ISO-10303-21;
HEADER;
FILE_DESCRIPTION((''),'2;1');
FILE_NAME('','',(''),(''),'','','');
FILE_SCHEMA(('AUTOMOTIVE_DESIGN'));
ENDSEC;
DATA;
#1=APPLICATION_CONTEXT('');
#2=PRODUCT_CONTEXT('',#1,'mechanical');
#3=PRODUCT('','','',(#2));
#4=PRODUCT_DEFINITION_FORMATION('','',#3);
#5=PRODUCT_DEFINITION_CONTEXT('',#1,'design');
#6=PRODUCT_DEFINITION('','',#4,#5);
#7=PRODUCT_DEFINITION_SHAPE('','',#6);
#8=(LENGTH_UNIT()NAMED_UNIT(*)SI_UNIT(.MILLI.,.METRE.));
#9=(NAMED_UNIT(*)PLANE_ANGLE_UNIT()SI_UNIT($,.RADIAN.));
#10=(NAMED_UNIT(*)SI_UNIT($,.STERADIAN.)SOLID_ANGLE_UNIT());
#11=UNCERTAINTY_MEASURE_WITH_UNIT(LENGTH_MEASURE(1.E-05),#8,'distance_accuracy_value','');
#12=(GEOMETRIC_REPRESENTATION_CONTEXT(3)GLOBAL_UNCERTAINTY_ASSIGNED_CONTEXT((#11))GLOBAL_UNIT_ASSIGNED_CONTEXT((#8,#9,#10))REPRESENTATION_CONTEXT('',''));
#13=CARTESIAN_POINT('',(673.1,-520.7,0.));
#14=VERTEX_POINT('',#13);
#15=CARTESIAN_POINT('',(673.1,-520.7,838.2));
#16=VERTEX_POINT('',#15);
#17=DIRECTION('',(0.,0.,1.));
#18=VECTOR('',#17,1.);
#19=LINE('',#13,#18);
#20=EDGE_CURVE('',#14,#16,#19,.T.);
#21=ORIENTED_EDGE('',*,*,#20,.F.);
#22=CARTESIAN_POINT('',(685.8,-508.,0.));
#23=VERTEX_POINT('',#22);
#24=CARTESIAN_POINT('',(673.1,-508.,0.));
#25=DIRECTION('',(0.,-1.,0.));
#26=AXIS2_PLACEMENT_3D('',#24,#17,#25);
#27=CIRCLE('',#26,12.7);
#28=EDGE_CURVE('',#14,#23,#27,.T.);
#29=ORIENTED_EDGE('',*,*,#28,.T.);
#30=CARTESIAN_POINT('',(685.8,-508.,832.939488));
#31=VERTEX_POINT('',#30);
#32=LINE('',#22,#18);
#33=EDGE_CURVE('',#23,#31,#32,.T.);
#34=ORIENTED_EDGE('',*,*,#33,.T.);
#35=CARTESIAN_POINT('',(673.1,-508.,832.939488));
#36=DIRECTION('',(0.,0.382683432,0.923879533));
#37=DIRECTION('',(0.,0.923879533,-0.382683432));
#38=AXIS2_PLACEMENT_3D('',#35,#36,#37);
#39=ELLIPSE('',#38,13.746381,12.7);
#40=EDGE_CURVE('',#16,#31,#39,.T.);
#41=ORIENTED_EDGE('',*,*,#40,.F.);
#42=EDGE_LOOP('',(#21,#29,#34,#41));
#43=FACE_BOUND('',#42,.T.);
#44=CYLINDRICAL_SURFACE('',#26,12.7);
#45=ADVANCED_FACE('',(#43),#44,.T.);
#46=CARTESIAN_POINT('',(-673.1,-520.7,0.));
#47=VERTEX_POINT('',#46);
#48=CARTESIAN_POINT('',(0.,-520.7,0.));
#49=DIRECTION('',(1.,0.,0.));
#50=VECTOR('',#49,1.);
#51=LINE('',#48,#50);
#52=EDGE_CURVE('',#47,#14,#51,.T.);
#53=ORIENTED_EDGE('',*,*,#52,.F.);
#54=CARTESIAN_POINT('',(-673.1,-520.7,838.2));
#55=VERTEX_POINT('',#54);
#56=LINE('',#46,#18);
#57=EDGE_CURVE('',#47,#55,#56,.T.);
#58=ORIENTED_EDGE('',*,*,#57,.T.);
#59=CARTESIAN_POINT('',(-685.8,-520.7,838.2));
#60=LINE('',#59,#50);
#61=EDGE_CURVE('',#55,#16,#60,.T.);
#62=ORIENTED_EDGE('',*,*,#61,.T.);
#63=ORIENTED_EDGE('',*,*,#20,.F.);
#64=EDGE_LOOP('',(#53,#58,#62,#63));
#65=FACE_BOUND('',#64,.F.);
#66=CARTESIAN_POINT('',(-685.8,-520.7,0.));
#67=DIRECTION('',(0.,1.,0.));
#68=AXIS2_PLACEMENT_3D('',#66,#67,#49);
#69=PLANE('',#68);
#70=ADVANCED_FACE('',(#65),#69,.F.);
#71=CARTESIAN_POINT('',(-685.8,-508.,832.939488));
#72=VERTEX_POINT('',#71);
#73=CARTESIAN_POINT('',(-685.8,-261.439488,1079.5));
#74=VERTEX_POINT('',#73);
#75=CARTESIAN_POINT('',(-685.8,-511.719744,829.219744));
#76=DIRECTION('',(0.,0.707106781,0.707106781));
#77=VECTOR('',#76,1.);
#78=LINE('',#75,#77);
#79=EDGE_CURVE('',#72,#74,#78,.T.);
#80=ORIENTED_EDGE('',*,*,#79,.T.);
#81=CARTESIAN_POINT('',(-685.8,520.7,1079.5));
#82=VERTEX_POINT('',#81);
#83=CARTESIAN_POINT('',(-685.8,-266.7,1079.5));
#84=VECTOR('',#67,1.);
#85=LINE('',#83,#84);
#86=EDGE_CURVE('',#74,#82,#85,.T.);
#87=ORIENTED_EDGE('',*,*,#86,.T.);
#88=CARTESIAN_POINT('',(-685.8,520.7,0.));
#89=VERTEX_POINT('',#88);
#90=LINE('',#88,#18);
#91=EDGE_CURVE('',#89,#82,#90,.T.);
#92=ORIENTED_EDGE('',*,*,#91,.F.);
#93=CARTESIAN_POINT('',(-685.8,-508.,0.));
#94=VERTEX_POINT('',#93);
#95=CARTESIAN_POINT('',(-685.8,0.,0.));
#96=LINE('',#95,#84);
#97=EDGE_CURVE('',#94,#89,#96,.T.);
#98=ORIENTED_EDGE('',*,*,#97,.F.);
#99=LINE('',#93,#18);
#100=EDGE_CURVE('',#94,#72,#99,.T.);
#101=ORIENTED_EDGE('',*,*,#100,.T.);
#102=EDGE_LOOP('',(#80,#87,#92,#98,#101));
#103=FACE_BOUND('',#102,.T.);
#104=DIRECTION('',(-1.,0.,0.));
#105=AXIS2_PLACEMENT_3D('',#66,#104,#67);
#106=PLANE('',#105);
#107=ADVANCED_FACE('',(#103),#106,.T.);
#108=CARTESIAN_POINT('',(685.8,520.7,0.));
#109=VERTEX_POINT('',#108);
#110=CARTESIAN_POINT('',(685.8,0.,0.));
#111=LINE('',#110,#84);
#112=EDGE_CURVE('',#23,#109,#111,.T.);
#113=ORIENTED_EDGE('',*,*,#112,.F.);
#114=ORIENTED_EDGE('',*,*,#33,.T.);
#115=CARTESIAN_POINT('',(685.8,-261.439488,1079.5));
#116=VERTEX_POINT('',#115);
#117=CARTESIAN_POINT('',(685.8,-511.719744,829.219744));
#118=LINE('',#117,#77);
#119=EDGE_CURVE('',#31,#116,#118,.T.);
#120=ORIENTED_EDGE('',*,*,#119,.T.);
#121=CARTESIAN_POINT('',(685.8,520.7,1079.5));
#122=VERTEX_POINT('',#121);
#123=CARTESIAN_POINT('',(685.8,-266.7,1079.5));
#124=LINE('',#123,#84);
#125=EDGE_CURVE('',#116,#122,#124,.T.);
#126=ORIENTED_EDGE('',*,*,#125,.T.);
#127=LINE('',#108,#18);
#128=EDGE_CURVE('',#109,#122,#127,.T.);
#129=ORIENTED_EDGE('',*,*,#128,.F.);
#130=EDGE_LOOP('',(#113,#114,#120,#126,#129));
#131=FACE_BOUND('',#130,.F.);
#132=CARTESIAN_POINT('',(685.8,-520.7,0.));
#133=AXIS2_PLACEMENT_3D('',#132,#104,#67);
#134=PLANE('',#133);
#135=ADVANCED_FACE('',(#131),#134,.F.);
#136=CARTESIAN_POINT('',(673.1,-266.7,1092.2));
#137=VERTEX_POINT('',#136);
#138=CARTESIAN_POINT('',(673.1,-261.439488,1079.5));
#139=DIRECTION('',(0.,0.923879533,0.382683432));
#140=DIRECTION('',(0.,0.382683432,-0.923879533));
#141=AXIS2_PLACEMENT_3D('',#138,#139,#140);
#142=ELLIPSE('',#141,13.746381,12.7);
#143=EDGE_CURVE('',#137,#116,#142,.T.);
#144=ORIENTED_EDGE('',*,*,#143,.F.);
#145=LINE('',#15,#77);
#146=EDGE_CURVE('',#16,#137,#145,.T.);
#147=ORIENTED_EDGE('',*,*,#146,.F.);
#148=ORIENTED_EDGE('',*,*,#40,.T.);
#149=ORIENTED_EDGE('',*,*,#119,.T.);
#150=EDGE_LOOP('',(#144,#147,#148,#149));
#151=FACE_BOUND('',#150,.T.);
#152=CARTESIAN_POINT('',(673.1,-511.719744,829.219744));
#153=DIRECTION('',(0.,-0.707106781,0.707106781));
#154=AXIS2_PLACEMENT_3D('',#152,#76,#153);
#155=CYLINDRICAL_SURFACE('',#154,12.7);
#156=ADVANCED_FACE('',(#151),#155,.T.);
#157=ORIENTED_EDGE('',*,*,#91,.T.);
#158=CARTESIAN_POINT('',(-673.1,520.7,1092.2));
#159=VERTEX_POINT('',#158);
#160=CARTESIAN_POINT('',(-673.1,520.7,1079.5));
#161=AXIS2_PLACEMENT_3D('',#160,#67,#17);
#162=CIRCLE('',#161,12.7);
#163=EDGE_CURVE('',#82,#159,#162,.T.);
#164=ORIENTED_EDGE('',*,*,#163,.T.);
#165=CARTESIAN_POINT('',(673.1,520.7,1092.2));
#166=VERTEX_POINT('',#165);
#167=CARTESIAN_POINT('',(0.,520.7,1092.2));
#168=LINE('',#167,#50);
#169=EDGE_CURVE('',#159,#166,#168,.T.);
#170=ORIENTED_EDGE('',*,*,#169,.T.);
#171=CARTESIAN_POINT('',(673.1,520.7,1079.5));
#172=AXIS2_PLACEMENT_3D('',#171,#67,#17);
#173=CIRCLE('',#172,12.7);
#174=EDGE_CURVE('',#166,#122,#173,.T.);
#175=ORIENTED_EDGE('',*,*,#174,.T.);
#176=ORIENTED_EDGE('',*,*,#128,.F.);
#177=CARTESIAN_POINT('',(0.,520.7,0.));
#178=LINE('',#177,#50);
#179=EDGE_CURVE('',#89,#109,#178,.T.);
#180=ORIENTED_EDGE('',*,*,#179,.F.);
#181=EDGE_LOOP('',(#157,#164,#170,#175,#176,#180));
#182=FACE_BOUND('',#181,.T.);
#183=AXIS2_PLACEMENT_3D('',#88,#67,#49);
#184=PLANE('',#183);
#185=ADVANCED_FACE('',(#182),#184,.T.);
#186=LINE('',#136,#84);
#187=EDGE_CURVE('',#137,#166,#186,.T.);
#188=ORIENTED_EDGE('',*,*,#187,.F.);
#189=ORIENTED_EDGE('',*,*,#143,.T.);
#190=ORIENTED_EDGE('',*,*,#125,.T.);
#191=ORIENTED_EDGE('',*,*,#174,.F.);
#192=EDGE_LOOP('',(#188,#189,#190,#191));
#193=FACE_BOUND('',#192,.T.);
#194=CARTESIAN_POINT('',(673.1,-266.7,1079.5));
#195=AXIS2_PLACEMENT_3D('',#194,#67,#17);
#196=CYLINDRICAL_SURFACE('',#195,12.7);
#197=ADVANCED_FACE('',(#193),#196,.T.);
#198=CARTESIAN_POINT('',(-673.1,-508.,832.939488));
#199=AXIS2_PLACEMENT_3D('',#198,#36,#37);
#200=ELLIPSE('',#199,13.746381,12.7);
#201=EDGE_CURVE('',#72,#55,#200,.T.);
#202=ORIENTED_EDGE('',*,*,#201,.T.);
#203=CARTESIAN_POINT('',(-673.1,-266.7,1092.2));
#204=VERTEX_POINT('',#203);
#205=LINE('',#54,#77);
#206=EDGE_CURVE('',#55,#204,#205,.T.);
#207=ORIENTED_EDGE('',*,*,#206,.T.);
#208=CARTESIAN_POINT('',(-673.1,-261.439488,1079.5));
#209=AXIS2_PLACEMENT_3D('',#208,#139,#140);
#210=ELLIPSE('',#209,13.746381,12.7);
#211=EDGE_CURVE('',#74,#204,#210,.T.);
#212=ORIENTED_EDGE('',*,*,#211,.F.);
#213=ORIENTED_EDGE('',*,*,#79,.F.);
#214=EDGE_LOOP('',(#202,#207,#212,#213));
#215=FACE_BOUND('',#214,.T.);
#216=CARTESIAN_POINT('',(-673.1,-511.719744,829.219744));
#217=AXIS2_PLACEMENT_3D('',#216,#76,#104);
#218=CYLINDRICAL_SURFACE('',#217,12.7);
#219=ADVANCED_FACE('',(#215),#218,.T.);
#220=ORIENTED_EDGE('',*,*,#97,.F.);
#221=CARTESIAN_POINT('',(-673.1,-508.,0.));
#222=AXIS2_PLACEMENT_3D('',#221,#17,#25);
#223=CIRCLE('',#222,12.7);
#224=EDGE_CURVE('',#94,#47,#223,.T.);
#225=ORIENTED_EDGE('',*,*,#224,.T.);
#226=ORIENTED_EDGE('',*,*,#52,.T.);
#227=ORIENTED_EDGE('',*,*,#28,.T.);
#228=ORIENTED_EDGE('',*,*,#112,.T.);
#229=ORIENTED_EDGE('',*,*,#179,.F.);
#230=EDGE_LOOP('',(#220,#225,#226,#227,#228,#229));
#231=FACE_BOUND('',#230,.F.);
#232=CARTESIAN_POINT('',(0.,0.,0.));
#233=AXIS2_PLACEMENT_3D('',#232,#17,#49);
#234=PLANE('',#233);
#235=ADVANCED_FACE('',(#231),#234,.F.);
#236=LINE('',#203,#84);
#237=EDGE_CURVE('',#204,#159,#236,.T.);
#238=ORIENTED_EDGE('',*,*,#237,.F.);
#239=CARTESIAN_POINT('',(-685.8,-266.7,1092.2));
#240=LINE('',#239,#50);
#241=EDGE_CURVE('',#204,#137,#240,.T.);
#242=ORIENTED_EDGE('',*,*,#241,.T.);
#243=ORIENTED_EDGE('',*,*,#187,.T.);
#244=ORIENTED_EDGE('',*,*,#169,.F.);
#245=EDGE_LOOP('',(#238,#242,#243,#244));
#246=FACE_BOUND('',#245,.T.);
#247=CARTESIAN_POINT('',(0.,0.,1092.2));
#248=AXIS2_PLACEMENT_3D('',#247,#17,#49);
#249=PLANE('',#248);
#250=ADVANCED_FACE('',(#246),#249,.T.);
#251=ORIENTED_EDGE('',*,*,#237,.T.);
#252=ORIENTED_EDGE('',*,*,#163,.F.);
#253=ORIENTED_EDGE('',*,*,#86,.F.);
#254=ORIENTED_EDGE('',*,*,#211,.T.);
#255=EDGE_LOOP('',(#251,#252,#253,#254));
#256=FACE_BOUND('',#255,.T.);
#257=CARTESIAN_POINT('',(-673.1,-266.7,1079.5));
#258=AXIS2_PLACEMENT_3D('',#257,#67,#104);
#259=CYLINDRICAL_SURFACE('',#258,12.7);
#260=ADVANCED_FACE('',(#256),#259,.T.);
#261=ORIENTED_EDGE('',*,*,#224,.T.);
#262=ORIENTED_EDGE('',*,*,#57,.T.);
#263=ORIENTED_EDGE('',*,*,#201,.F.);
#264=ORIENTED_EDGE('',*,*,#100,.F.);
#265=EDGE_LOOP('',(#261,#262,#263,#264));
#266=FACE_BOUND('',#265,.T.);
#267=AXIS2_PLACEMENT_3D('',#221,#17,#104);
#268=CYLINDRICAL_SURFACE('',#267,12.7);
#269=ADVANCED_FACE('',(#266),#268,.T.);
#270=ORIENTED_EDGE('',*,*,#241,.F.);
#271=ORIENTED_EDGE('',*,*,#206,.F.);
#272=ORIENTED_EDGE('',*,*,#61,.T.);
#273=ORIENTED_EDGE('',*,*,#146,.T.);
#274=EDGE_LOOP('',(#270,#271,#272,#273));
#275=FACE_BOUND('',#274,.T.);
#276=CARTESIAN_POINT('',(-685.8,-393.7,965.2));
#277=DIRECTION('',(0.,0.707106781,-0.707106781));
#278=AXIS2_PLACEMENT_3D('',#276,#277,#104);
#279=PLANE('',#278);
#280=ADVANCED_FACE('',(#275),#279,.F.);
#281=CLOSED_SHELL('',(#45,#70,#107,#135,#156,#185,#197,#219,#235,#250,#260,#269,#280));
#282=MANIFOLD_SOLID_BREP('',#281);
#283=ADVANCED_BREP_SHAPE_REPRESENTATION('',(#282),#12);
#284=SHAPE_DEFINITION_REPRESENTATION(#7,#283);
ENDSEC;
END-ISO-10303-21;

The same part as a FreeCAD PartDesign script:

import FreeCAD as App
import Part
import Sketcher

V = App.Vector
Q = App.Units.Quantity


def edges_at(feature, points):
    """Names of the edges that pass closest to the given points."""
    edges = feature.Shape.Edges
    near = lambda p: min(range(len(edges)), key=lambda i: edges[i].distToShape(Part.Vertex(*p))[0])
    return sorted({f"Edge{near(p) + 1}" for p in points})

doc = App.newDocument("Part")
params = doc.addObject("Spreadsheet::Sheet", "Params")
for row, (alias, value) in enumerate([
    ("sketch1_width", "54 in"),
    ("sketch1_height", "41 in"),
    ("pad1_length", "43 in"),
    ("chamfer_size", "10 in"),
    ("fillet_radius", "0.5 in"),
], start=1):
    params.set(f"A{row}", alias)
    params.set(f"B{row}", "=" + value)
    params.setAlias(f"B{row}", alias)

body = doc.addObject("PartDesign::Body", "Body")

# Sketch on XY plane
sketch1 = body.newObject("Sketcher::SketchObject", "Sketch")
sketch1.AttachmentSupport = (doc.getObject("XY_Plane"), [""])
sketch1.MapMode = "FlatFace"
sketch1.addGeometry(Part.LineSegment(V(-685.8, 520.7, 0), V(-685.8, -520.7, 0)), False)
sketch1.addGeometry(Part.LineSegment(V(-685.8, -520.7, 0), V(685.8, -520.7, 0)), False)
sketch1.addGeometry(Part.LineSegment(V(685.8, -520.7, 0), V(685.8, 520.7, 0)), False)
sketch1.addGeometry(Part.LineSegment(V(685.8, 520.7, 0), V(-685.8, 520.7, 0)), False)
sketch1.addConstraint(Sketcher.Constraint("Coincident", 0, 2, 1, 1))
sketch1.addConstraint(Sketcher.Constraint("Coincident", 1, 2, 2, 1))
sketch1.addConstraint(Sketcher.Constraint("Coincident", 2, 2, 3, 1))
sketch1.addConstraint(Sketcher.Constraint("Coincident", 3, 2, 0, 1))
sketch1.addConstraint(Sketcher.Constraint("Vertical", 0))
sketch1.addConstraint(Sketcher.Constraint("Horizontal", 1))
sketch1.addConstraint(Sketcher.Constraint("Vertical", 2))
sketch1.addConstraint(Sketcher.Constraint("Horizontal", 3))
sketch1.addConstraint(Sketcher.Constraint("Symmetric", 0, 2, 2, 2, -1, 1))
sketch1.addConstraint(Sketcher.Constraint("DistanceX", 1, 1, 1, 2, Q("54 in")))
sketch1.addConstraint(Sketcher.Constraint("DistanceY", 0, 2, 0, 1, Q("41 in")))
sketch1.setExpression("Constraints[9]", "Params.sketch1_width")
sketch1.setExpression("Constraints[10]", "Params.sketch1_height")
pad1 = body.newObject("PartDesign::Pad", "Pad")
pad1.Profile = sketch1
pad1.setExpression("Length", "Params.pad1_length")
doc.recompute()

chamfer = body.newObject("PartDesign::Chamfer", "Chamfer")
chamfer.Base = (pad1, edges_at(pad1, [(0, -520.7, 1092.2)]))
chamfer.setExpression("Size", "Params.chamfer_size")
doc.recompute()

fillet = body.newObject("PartDesign::Fillet", "Fillet")
fillet.Base = (chamfer, edges_at(chamfer, [
    (685.8, 127, 1092.2),
    (685.8, -393.7, 965.2),
    (685.8, -520.7, 419.1),
    (-685.8, 127, 1092.2),
    (-685.8, -393.7, 965.2),
    (-685.8, -520.7, 419.1),
]))
fillet.setExpression("Radius", "Params.fillet_radius")

doc.recompute()
